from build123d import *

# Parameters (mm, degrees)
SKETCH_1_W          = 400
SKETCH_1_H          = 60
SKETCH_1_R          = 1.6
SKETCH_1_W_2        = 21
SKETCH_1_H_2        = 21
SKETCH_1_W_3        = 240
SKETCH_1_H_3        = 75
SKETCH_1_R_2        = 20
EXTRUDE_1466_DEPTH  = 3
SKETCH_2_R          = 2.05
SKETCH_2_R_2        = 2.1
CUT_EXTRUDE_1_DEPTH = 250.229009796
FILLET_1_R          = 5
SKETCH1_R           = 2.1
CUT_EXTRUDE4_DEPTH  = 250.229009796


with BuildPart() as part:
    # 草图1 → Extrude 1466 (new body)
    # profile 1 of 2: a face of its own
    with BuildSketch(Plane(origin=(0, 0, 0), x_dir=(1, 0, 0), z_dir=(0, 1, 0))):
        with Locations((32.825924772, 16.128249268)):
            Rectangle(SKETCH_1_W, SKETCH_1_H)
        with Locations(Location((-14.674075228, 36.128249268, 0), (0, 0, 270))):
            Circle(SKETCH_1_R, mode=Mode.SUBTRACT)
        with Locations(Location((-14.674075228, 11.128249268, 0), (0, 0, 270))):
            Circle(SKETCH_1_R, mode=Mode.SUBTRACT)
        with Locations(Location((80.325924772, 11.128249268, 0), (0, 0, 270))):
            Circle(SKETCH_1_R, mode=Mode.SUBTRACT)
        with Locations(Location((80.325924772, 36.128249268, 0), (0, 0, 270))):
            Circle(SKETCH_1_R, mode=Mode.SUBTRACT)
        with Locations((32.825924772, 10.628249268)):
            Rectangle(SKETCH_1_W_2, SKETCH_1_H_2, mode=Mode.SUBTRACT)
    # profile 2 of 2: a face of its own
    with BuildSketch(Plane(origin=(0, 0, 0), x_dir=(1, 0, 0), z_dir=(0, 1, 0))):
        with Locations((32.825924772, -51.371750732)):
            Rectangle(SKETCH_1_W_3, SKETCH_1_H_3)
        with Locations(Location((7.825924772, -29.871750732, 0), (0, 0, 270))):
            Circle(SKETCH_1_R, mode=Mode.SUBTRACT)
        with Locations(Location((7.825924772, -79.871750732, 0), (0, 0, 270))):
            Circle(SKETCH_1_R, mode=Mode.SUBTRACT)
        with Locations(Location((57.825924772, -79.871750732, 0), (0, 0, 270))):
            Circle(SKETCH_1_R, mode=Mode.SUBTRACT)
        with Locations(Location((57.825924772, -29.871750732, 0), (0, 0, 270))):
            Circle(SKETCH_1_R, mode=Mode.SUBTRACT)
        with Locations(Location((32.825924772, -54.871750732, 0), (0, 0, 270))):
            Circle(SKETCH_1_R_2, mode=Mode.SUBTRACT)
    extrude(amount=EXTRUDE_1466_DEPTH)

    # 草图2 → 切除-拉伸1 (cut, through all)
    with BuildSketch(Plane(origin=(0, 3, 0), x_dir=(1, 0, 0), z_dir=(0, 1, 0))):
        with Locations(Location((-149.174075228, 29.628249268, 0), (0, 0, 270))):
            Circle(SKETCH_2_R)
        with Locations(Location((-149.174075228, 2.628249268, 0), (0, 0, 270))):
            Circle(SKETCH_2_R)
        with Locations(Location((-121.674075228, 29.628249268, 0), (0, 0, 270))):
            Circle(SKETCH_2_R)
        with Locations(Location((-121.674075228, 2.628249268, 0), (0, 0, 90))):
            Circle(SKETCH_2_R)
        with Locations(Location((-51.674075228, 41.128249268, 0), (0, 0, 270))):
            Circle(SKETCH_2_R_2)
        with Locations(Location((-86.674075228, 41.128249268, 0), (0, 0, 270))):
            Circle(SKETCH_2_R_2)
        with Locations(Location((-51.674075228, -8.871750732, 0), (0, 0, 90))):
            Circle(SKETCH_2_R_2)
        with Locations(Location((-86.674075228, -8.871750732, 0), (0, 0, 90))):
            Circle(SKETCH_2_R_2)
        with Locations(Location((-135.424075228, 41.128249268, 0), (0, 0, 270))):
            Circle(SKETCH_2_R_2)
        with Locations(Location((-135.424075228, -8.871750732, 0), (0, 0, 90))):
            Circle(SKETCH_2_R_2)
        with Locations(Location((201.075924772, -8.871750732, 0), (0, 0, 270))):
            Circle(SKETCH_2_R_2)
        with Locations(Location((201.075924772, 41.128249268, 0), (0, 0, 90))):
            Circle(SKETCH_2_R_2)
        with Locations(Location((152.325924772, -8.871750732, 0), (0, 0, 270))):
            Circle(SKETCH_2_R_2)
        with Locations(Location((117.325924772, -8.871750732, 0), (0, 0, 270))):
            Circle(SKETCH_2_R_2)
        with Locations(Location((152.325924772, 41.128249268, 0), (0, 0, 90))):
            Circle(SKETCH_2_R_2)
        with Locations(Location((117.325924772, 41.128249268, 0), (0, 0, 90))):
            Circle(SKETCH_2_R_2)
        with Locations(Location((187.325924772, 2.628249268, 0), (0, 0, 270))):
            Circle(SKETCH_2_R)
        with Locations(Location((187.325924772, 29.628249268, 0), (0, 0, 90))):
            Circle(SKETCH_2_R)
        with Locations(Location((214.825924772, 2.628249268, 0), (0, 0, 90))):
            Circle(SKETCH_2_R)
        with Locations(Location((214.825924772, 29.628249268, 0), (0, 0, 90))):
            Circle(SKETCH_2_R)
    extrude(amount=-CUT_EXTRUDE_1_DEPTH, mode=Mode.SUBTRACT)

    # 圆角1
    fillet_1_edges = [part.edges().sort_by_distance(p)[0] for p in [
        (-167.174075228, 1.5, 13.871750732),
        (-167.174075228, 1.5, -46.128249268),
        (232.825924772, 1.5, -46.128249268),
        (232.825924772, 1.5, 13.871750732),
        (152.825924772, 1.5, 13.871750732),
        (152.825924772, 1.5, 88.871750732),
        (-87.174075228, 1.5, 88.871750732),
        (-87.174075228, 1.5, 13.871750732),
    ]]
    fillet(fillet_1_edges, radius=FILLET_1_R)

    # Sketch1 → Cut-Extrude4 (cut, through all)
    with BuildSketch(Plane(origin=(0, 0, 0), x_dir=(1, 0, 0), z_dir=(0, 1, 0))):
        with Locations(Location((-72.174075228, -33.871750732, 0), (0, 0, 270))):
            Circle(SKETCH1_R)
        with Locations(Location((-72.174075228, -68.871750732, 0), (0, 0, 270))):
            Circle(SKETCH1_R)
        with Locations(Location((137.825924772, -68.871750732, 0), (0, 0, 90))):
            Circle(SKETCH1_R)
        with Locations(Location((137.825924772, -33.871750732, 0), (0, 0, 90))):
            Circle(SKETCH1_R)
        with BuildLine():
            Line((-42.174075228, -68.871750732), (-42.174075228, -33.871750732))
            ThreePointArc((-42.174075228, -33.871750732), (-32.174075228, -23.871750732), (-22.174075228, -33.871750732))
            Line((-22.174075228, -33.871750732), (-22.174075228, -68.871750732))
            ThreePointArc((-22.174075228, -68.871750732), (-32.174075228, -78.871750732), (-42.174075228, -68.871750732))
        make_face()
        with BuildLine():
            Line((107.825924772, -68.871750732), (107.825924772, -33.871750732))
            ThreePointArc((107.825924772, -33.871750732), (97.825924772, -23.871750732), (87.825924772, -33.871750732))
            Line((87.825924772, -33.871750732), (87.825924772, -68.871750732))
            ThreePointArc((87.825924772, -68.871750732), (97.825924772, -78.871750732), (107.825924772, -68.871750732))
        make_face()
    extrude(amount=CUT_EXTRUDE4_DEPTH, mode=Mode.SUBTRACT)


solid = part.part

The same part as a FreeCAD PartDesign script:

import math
import FreeCAD as App
import Part
import Sketcher
Q = App.Units.Quantity


def edges_at(feature, points):
    """Names of the edges that pass closest to the given points."""
    edges = feature.Shape.Edges
    near = lambda p: min(range(len(edges)), key=lambda i: edges[i].distToShape(Part.Vertex(*p))[0])
    return sorted({f"Edge{near(p) + 1}" for p in points})


def add_polygon(sketch, points):
    """Adds a closed chain of lines whose ends are joined by coincident constraints."""
    first, n = sketch.GeometryCount, len(points)
    for a, b in zip(points, points[1:] + points[:1]):
        sketch.addGeometry(Part.LineSegment(App.Vector(*a, 0), App.Vector(*b, 0)), False)
    for i in range(n):
        sketch.addConstraint(Sketcher.Constraint("Coincident", first + i, 2, first + (i + 1) % n, 1))

doc = App.newDocument("Part")
body = doc.addObject("PartDesign::Body", "Body")

# Sketch on XZ plane
sketch1 = body.newObject("Sketcher::SketchObject", "Sketch")
sketch1.AttachmentSupport = (doc.getObject("XZ_Plane"), [""])
sketch1.MapMode = "FlatFace"
add_polygon(sketch1, [(-167.2, -46.1), (-167.2, 13.9), (-87.2, 13.9), (-87.2, 88.9), (152.8, 88.9), (152.8, 13.9), (232.8, 13.9), (232.8, -46.1)])  # lines 0-7
sketch1.addGeometry(Part.Circle(App.Vector(-14.7, -11.1, 0), App.Vector(0, 0, 1), 1.6), False)  # 8
add_polygon(sketch1, [(43.3, -0.1), (22.3, -0.1), (22.3, -21.1), (43.3, -21.1)])  # lines 9-12
sketch1.addGeometry(Part.Circle(App.Vector(80.3, -11.1, 0), App.Vector(0, 0, 1), 1.6), False)  # 13
sketch1.addGeometry(Part.Circle(App.Vector(-14.7, -36.1, 0), App.Vector(0, 0, 1), 1.6), False)  # 14
sketch1.addGeometry(Part.Circle(App.Vector(80.3, -36.1, 0), App.Vector(0, 0, 1), 1.6), False)  # 15
sketch1.addGeometry(Part.Circle(App.Vector(57.8, 29.9, 0), App.Vector(0, 0, 1), 1.6), False)  # 16
sketch1.addGeometry(Part.Circle(App.Vector(7.8, 79.9, 0), App.Vector(0, 0, 1), 1.6), False)  # 17
sketch1.addGeometry(Part.Circle(App.Vector(57.8, 79.9, 0), App.Vector(0, 0, 1), 1.6), False)  # 18
sketch1.addGeometry(Part.Circle(App.Vector(32.8, 54.9, 0), App.Vector(0, 0, 1), 20), False)  # 19
sketch1.addGeometry(Part.Circle(App.Vector(7.8, 29.9, 0), App.Vector(0, 0, 1), 1.6), False)  # 20
sketch1.addConstraint([
    Sketcher.Constraint("Vertical", 0),
    Sketcher.Constraint("Horizontal", 1),
    Sketcher.Constraint("Vertical", 2),
    Sketcher.Constraint("Horizontal", 3),
    Sketcher.Constraint("Vertical", 4),
    Sketcher.Constraint("Horizontal", 5),
    Sketcher.Constraint("Vertical", 6),
    Sketcher.Constraint("Horizontal", 7),
    Sketcher.Constraint("Horizontal", 9),
    Sketcher.Constraint("Vertical", 10),
    Sketcher.Constraint("Horizontal", 11),
    Sketcher.Constraint("Vertical", 12),
    Sketcher.Constraint("Equal", 8, 13),
    Sketcher.Constraint("Equal", 13, 14),
    Sketcher.Constraint("Equal", 14, 15),
    Sketcher.Constraint("Equal", 15, 16),
    Sketcher.Constraint("Equal", 16, 17),
    Sketcher.Constraint("Equal", 17, 18),
    Sketcher.Constraint("Equal", 18, 20),
    Sketcher.Constraint("Horizontal", 8, 3, 13, 3),
    Sketcher.Constraint("Horizontal", 14, 3, 15, 3),
    Sketcher.Constraint("Horizontal", 17, 3, 18, 3),
    Sketcher.Constraint("Horizontal", 16, 3, 20, 3),
    Sketcher.Constraint("Horizontal", 1, 2, 4, 2),
    Sketcher.Constraint("Vertical", 8, 3, 14, 3),
    Sketcher.Constraint("Vertical", 13, 3, 15, 3),
    Sketcher.Constraint("Vertical", 16, 3, 18, 3),
    Sketcher.Constraint("Vertical", 17, 3, 20, 3),
    Sketcher.Constraint("Equal", 1, 5),
    Sketcher.Constraint("Equal", 11, 10),
    Sketcher.Constraint("Diameter", 19, Q("40 mm")),
    Sketcher.Constraint("Diameter", 8, Q("3.2 mm")),
    Sketcher.Constraint("DistanceX", 1, 1, 1, 2, Q("80 mm")),
    Sketcher.Constraint("DistanceX", 3, 1, 3, 2, Q("240 mm")),
    Sketcher.Constraint("DistanceX", 9, 2, 9, 1, Q("21 mm")),
    Sketcher.Constraint("DistanceY", 0, 1, 0, 2, Q("60 mm")),
    Sketcher.Constraint("DistanceY", 2, 1, 2, 2, Q("75 mm")),
    Sketcher.Constraint("DistanceX", 8, 3, 13, 3, Q("95 mm")),
    Sketcher.Constraint("DistanceY", 14, 3, 8, 3, Q("25 mm")),
    Sketcher.Constraint("DistanceY", 13, 3, 16, 3, Q("41 mm")),
    Sketcher.Constraint("DistanceX", 17, 3, 16, 3, Q("50 mm")),
    Sketcher.Constraint("DistanceY", 16, 3, 17, 3, Q("50 mm")),
    Sketcher.Constraint("DistanceX", 17, 3, 19, 3, Q("25 mm")),
    Sketcher.Constraint("DistanceY", 19, 3, 17, 3, Q("25 mm")),
    Sketcher.Constraint("DistanceY", 8, 3, 0, 2, Q("25 mm")),
    Sketcher.Constraint("DistanceX", 0, 2, 20, 3, Q("175 mm")),
    Sketcher.Constraint("DistanceY", 9, 2, 20, 3, Q("30 mm")),
    Sketcher.Constraint("DistanceX", 8, 3, 9, 2, Q("37 mm")),
    Sketcher.Constraint("DistanceX", 16, 3, 13, 3, Q("22.5 mm")),
    Sketcher.Constraint("DistanceY", 8, 3, -1, 1, Q("11.128249 mm")),
    Sketcher.Constraint("DistanceX", 8, 3, -1, 1, Q("14.674075 mm")),
])
pad1 = body.newObject("PartDesign::Pad", "Pad")
pad1.Profile = sketch1
pad1.Length = 3
pad1.Reversed = True

# Sketch on XZ plane
sketch2 = body.newObject("Sketcher::SketchObject", "Sketch001")
sketch2.AttachmentSupport = (doc.getObject("XZ_Plane"), [""])
sketch2.MapMode = "FlatFace"
sketch2.AttachmentOffset = App.Placement(App.Vector(0, 0, -3), App.Rotation())
sketch2.addGeometry([
    Part.Circle(App.Vector(-149.2, -29.6, 0), App.Vector(0, 0, 1), 2),  # 0
    Part.Circle(App.Vector(-149.2, -2.6, 0), App.Vector(0, 0, 1), 2),  # 1
    Part.Circle(App.Vector(-121.7, -29.6, 0), App.Vector(0, 0, 1), 2),  # 2
    Part.Circle(App.Vector(-121.7, -2.6, 0), App.Vector(0, 0, 1), 2),  # 3
    Part.Circle(App.Vector(-51.7, -41.1, 0), App.Vector(0, 0, 1), 2.1),  # 4
    Part.Circle(App.Vector(-86.7, -41.1, 0), App.Vector(0, 0, 1), 2.1),  # 5
    Part.Circle(App.Vector(-51.7, 8.9, 0), App.Vector(0, 0, 1), 2.1),  # 6
    Part.Circle(App.Vector(-86.7, 8.9, 0), App.Vector(0, 0, 1), 2.1),  # 7
    Part.Circle(App.Vector(-135.4, -41.1, 0), App.Vector(0, 0, 1), 2.1),  # 8
    Part.Circle(App.Vector(-135.4, 8.9, 0), App.Vector(0, 0, 1), 2.1),  # 9
    Part.Circle(App.Vector(201.1, 8.9, 0), App.Vector(0, 0, 1), 2.1),  # 10
    Part.Circle(App.Vector(201.1, -41.1, 0), App.Vector(0, 0, 1), 2.1),  # 11
    Part.Circle(App.Vector(152.3, 8.9, 0), App.Vector(0, 0, 1), 2.1),  # 12
    Part.Circle(App.Vector(117.3, 8.9, 0), App.Vector(0, 0, 1), 2.1),  # 13
    Part.Circle(App.Vector(152.3, -41.1, 0), App.Vector(0, 0, 1), 2.1),  # 14
    Part.Circle(App.Vector(117.3, -41.1, 0), App.Vector(0, 0, 1), 2.1),  # 15
    Part.Circle(App.Vector(187.3, -2.6, 0), App.Vector(0, 0, 1), 2),  # 16
    Part.Circle(App.Vector(187.3, -29.6, 0), App.Vector(0, 0, 1), 2),  # 17
    Part.Circle(App.Vector(214.8, -2.6, 0), App.Vector(0, 0, 1), 2),  # 18
    Part.Circle(App.Vector(214.8, -29.6, 0), App.Vector(0, 0, 1), 2),  # 19
], False)
sketch2.addConstraint([
    Sketcher.Constraint("Equal", 0, 1),
    Sketcher.Constraint("Equal", 1, 2),
    Sketcher.Constraint("Equal", 2, 3),
    Sketcher.Constraint("Equal", 4, 5),
    Sketcher.Constraint("Equal", 5, 6),
    Sketcher.Constraint("Equal", 6, 7),
    Sketcher.Constraint("Equal", 7, 8),
    Sketcher.Constraint("Equal", 8, 9),
    Sketcher.Constraint("Equal", 9, 10),
    Sketcher.Constraint("Equal", 10, 11),
    Sketcher.Constraint("Equal", 11, 12),
    Sketcher.Constraint("Equal", 12, 13),
    Sketcher.Constraint("Equal", 13, 14),
    Sketcher.Constraint("Equal", 14, 15),
    Sketcher.Constraint("Equal", 3, 16),
    Sketcher.Constraint("Equal", 16, 17),
    Sketcher.Constraint("Equal", 17, 18),
    Sketcher.Constraint("Equal", 18, 19),
    Sketcher.Constraint("Horizontal", 0, 3, 2, 3),
    Sketcher.Constraint("Horizontal", 1, 3, 3, 3),
    Sketcher.Constraint("Horizontal", 4, 3, 5, 3),
    Sketcher.Constraint("Horizontal", 6, 3, 7, 3),
    Sketcher.Constraint("Horizontal", 5, 3, 8, 3),
    Sketcher.Constraint("Horizontal", 7, 3, 9, 3),
    Sketcher.Constraint("Horizontal", 9, 3, 10, 3),
    Sketcher.Constraint("Horizontal", 8, 3, 11, 3),
    Sketcher.Constraint("Horizontal", 10, 3, 12, 3),
    Sketcher.Constraint("Horizontal", 12, 3, 13, 3),
    Sketcher.Constraint("Horizontal", 11, 3, 14, 3),
    Sketcher.Constraint("Horizontal", 14, 3, 15, 3),
    Sketcher.Constraint("Horizontal", 3, 3, 16, 3),
    Sketcher.Constraint("Horizontal", 2, 3, 17, 3),
    Sketcher.Constraint("Horizontal", 16, 3, 18, 3),
    Sketcher.Constraint("Horizontal", 17, 3, 19, 3),
    Sketcher.Constraint("Vertical", 0, 3, 1, 3),
    Sketcher.Constraint("Vertical", 2, 3, 3, 3),
    Sketcher.Constraint("Vertical", 4, 3, 6, 3),
    Sketcher.Constraint("Vertical", 5, 3, 7, 3),
    Sketcher.Constraint("Vertical", 8, 3, 9, 3),
    Sketcher.Constraint("Vertical", 10, 3, 11, 3),
    Sketcher.Constraint("Vertical", 12, 3, 14, 3),
    Sketcher.Constraint("Vertical", 13, 3, 15, 3),
    Sketcher.Constraint("Vertical", 16, 3, 17, 3),
    Sketcher.Constraint("Vertical", 18, 3, 19, 3),
    Sketcher.Constraint("Diameter", 0, Q("4.1 mm")),
    Sketcher.Constraint("Diameter", 4, Q("4.2 mm")),
    Sketcher.Constraint("DistanceY", 0, 3, 1, 3, Q("27 mm")),
    Sketcher.Constraint("DistanceX", 2, 3, 4, 3, Q("70 mm")),
    Sketcher.Constraint("DistanceX", 5, 3, 4, 3, Q("35 mm")),
    Sketcher.Constraint("DistanceY", 4, 3, 6, 3, Q("50 mm")),
    Sketcher.Constraint("DistanceX", 6, 3, 12, 3, Q("204 mm")),
    Sketcher.Constraint("DistanceX", 13, 3, 12, 3, Q("35 mm")),
    Sketcher.Constraint("DistanceX", 12, 3, 16, 3, Q("35 mm")),
    Sketcher.Constraint("DistanceX", 0, 3, 2, 3, Q("27.5 mm")),
    Sketcher.Constraint("DistanceY", 4, 3, 2, 3, Q("11.5 mm")),
    Sketcher.Constraint("DistanceX", 16, 3, 18, 3, Q("27.5 mm")),
    Sketcher.Constraint("DistanceX", 8, 3, 2, 3, Q("13.75 mm")),
    Sketcher.Constraint("DistanceX", 6, 3, 10, 3, Q("252.75 mm")),
    Sketcher.Constraint("DistanceY", 0, 3, -1, 1, Q("29.628249 mm")),
    Sketcher.Constraint("DistanceX", 0, 3, -1, 1, Q("149.174075 mm")),
])
pocket1 = body.newObject("PartDesign::Pocket", "Pocket")
pocket1.Profile = sketch2
pocket1.Type = "ThroughAll"
pocket1.Reversed = True
doc.recompute()

fillet = body.newObject("PartDesign::Fillet", "Fillet")
fillet.Base = (pocket1, edges_at(pocket1, [
    (-167.174, 1.5, 13.872),
    (-167.174, 1.5, -46.128),
    (232.826, 1.5, -46.128),
    (232.826, 1.5, 13.872),
    (152.826, 1.5, 13.872),
    (152.826, 1.5, 88.872),
    (-87.174, 1.5, 88.872),
    (-87.174, 1.5, 13.872),
]))
fillet.Radius = 5

# Sketch on XZ plane
sketch3 = body.newObject("Sketcher::SketchObject", "Sketch002")
sketch3.AttachmentSupport = (doc.getObject("XZ_Plane"), [""])
sketch3.MapMode = "FlatFace"
sketch3.addGeometry([
    Part.Circle(App.Vector(-72.2, 33.9, 0), App.Vector(0, 0, 1), 2.1),  # 0
    Part.Circle(App.Vector(-72.2, 68.9, 0), App.Vector(0, 0, 1), 2.1),  # 1
    Part.Circle(App.Vector(137.8, 68.9, 0), App.Vector(0, 0, 1), 2.1),  # 2
    Part.Circle(App.Vector(137.8, 33.9, 0), App.Vector(0, 0, 1), 2.1),  # 3
    Part.LineSegment(App.Vector(-42.2, 33.9, 0), App.Vector(-42.2, 68.9, 0)),  # 4
    Part.ArcOfCircle(Part.Circle(App.Vector(-32.2, 68.9, 0), App.Vector(0, 0, 1), 10), math.radians(0), math.radians(180)),  # 5
    Part.LineSegment(App.Vector(-22.2, 68.9, 0), App.Vector(-22.2, 33.9, 0)),  # 6
    Part.ArcOfCircle(Part.Circle(App.Vector(-32.2, 33.9, 0), App.Vector(0, 0, 1), 10), math.radians(180), math.radians(360)),  # 7
    Part.LineSegment(App.Vector(107.8, 68.9, 0), App.Vector(107.8, 33.9, 0)),  # 8
    Part.ArcOfCircle(Part.Circle(App.Vector(97.8, 33.9, 0), App.Vector(0, 0, 1), 10), math.radians(180), math.radians(360)),  # 9
    Part.LineSegment(App.Vector(87.8, 33.9, 0), App.Vector(87.8, 68.9, 0)),  # 10
    Part.ArcOfCircle(Part.Circle(App.Vector(97.8, 68.9, 0), App.Vector(0, 0, 1), 10), math.radians(0), math.radians(180)),  # 11
], False)
sketch3.addConstraint([
    Sketcher.Constraint("Tangent", 4, 2, 5, 2),
    Sketcher.Constraint("Tangent", 5, 1, 6, 1),
    Sketcher.Constraint("Tangent", 6, 2, 7, 2),
    Sketcher.Constraint("Tangent", 7, 1, 4, 1),
    Sketcher.Constraint("Tangent", 8, 2, 9, 2),
    Sketcher.Constraint("Tangent", 9, 1, 10, 1),
    Sketcher.Constraint("Tangent", 10, 2, 11, 2),
    Sketcher.Constraint("Tangent", 11, 1, 8, 1),
    Sketcher.Constraint("Vertical", 4),
    Sketcher.Constraint("Vertical", 6),
    Sketcher.Constraint("Vertical", 8),
    Sketcher.Constraint("Vertical", 10),
    Sketcher.Constraint("Equal", 0, 1),
    Sketcher.Constraint("Equal", 1, 2),
    Sketcher.Constraint("Equal", 2, 3),
    Sketcher.Constraint("Equal", 7, 9),
    Sketcher.Constraint("Horizontal", 1, 3, 2, 3),
    Sketcher.Constraint("Horizontal", 0, 3, 3, 3),
    Sketcher.Constraint("Horizontal", 2, 3, 5, 3),
    Sketcher.Constraint("Horizontal", 3, 3, 7, 3),
    Sketcher.Constraint("Horizontal", 7, 3, 9, 3),
    Sketcher.Constraint("Horizontal", 5, 3, 11, 3),
    Sketcher.Constraint("Vertical", 0, 3, 1, 3),
    Sketcher.Constraint("Vertical", 2, 3, 3, 3),
    Sketcher.Constraint("Radius", 5, Q("10 mm")),
    Sketcher.Constraint("Diameter", 0, Q("4.2 mm")),
    Sketcher.Constraint("DistanceY", 4, 1, 4, 2, Q("35 mm")),
    Sketcher.Constraint("DistanceX", 1, 3, 2, 3, Q("210 mm")),
    Sketcher.Constraint("DistanceX", 1, 3, 5, 3, Q("40 mm")),
    Sketcher.Constraint("DistanceX", 9, 3, 3, 3, Q("40 mm")),
    Sketcher.Constraint("DistanceY", -1, 1, 0, 3, Q("33.871751 mm")),
    Sketcher.Constraint("DistanceX", 0, 3, -1, 1, Q("72.174075 mm")),
])
pocket2 = body.newObject("PartDesign::Pocket", "Pocket001")
pocket2.Profile = sketch3
pocket2.Type = "ThroughAll"

doc.recompute()
